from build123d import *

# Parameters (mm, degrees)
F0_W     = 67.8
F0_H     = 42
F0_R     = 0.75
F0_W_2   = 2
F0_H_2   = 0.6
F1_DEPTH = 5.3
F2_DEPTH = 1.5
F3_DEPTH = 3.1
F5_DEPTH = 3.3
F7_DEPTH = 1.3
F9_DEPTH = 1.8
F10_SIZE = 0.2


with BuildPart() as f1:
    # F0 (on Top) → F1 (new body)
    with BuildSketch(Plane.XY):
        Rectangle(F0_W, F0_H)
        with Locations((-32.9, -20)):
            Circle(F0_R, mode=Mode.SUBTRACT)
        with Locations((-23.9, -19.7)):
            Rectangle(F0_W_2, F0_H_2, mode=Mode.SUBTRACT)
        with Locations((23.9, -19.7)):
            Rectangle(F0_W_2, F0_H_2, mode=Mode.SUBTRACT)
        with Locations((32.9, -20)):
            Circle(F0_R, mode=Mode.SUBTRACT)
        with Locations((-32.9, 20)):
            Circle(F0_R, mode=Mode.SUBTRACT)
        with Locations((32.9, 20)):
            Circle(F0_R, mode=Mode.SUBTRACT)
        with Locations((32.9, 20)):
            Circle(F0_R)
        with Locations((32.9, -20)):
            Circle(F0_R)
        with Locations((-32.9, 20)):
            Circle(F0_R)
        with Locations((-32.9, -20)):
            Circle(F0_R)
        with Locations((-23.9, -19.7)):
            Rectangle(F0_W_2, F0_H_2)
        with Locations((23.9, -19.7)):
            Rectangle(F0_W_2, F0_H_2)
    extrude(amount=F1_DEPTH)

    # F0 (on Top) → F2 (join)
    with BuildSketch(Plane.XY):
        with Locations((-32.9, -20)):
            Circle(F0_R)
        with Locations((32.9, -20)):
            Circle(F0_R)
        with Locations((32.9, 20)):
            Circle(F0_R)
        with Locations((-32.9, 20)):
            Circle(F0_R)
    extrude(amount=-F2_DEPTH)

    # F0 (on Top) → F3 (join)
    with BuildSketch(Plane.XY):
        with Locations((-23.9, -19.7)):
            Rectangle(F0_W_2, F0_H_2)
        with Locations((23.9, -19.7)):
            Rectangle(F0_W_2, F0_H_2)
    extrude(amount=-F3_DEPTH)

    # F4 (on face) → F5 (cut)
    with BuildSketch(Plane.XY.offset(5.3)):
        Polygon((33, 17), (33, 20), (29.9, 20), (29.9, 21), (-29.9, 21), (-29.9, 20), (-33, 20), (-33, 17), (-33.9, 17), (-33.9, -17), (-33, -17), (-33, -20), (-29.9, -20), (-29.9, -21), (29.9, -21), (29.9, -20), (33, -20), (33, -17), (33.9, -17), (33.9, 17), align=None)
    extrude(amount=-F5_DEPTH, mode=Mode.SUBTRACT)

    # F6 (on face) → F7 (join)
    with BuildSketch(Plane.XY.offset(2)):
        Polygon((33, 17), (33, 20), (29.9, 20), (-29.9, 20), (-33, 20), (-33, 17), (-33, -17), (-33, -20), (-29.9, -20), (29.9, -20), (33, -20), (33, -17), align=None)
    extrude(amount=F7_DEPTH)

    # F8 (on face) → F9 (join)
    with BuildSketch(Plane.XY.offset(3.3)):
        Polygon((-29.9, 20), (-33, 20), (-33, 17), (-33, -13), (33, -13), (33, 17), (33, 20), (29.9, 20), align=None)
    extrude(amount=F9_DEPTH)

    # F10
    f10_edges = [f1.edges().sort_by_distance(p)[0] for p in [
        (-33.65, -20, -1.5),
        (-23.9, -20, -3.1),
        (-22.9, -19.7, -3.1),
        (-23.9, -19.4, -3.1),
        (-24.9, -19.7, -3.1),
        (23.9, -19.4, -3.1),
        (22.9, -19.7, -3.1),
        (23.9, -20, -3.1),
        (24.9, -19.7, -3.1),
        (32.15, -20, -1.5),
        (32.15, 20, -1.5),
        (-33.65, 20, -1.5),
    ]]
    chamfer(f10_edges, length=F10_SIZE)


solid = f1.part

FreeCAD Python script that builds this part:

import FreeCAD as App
import Part
import Sketcher
from FreeCAD import Vector


def edges_at(feature, points):
    """Names of the edges that pass closest to the given points."""
    edges = feature.Shape.Edges
    near = lambda p: min(range(len(edges)), key=lambda i: edges[i].distToShape(Part.Vertex(*p))[0])
    return sorted({f"Edge{near(p) + 1}" for p in points})

doc = App.newDocument("Part")
body = doc.addObject("PartDesign::Body", "Body")

# Sketch on XY plane
sketch1 = doc.addObject("Sketcher::SketchObject", "Sketch")
body.addObject(sketch1)
sketch1.AttachmentSupport = (doc.XY_Plane, [""])
sketch1.MapMode = "FlatFace"
sketch1.addGeometry(Part.LineSegment(Vector(-33.9, 21, 0), Vector(-33.9, -21, 0)), False)
sketch1.addGeometry(Part.LineSegment(Vector(-33.9, -21, 0), Vector(33.9, -21, 0)), False)
sketch1.addGeometry(Part.LineSegment(Vector(33.9, -21, 0), Vector(33.9, 21, 0)), False)
sketch1.addGeometry(Part.LineSegment(Vector(33.9, 21, 0), Vector(-33.9, 21, 0)), False)
sketch1.addConstraint(Sketcher.Constraint("Coincident", 0, 2, 1, 1))
sketch1.addConstraint(Sketcher.Constraint("Coincident", 1, 2, 2, 1))
sketch1.addConstraint(Sketcher.Constraint("Coincident", 2, 2, 3, 1))
sketch1.addConstraint(Sketcher.Constraint("Coincident", 3, 2, 0, 1))
sketch1.addConstraint(Sketcher.Constraint("Vertical", 0))
sketch1.addConstraint(Sketcher.Constraint("Horizontal", 1))
sketch1.addConstraint(Sketcher.Constraint("Vertical", 2))
sketch1.addConstraint(Sketcher.Constraint("Horizontal", 3))
sketch1.addConstraint(Sketcher.Constraint("Symmetric", 0, 2, 2, 2, -1, 1))
sketch1.addConstraint(Sketcher.Constraint("DistanceY", 0, 2, 0, 1, 42.0))
sketch1.addConstraint(Sketcher.Constraint("DistanceX", 1, 1, 1, 2, 67.8))
pad1 = doc.addObject("PartDesign::Pad", "Pad")
body.addObject(pad1)
pad1.Profile = sketch1
pad1.Length = 5.3

# Sketch on XY plane
sketch2 = doc.addObject("Sketcher::SketchObject", "Sketch001")
body.addObject(sketch2)
sketch2.AttachmentSupport = (doc.XY_Plane, [""])
sketch2.MapMode = "FlatFace"
sketch2.addGeometry(Part.Circle(Vector(-32.9, -20, 0), Vector(0, 0, 1), 0.75), False)
sketch2.addGeometry(Part.Circle(Vector(32.9, -20, 0), Vector(0, 0, 1), 0.75), False)
sketch2.addGeometry(Part.Circle(Vector(32.9, 20, 0), Vector(0, 0, 1), 0.75), False)
sketch2.addGeometry(Part.Circle(Vector(-32.9, 20, 0), Vector(0, 0, 1), 0.75), False)
sketch2.addConstraint(Sketcher.Constraint("Equal", 0, 1))
sketch2.addConstraint(Sketcher.Constraint("Equal", 1, 2))
sketch2.addConstraint(Sketcher.Constraint("Equal", 2, 3))
sketch2.addConstraint(Sketcher.Constraint("Symmetric", 0, 3, 2, 3, -1, 1))
sketch2.addConstraint(Sketcher.Constraint("Symmetric", 1, 3, 3, 3, -1, 1))
sketch2.addConstraint(Sketcher.Constraint("Symmetric", 0, 3, 1, 3, -2))
sketch2.addConstraint(Sketcher.Constraint("Diameter", 0, 1.5))
sketch2.addConstraint(Sketcher.Constraint("DistanceY", 0, 3, -1, 1, 20.0))
sketch2.addConstraint(Sketcher.Constraint("DistanceX", 0, 3, -1, 1, 32.9))
pad2 = doc.addObject("PartDesign::Pad", "Pad001")
body.addObject(pad2)
pad2.Profile = sketch2
pad2.Length = 1.5
pad2.Reversed = True

# Sketch on XY plane
sketch3 = doc.addObject("Sketcher::SketchObject", "Sketch002")
body.addObject(sketch3)
sketch3.AttachmentSupport = (doc.XY_Plane, [""])
sketch3.MapMode = "FlatFace"
sketch3.addGeometry(Part.LineSegment(Vector(-24.9, -19.4, 0), Vector(-24.9, -20, 0)), False)
sketch3.addGeometry(Part.LineSegment(Vector(-24.9, -20, 0), Vector(-22.9, -20, 0)), False)
sketch3.addGeometry(Part.LineSegment(Vector(-22.9, -20, 0), Vector(-22.9, -19.4, 0)), False)
sketch3.addGeometry(Part.LineSegment(Vector(-22.9, -19.4, 0), Vector(-24.9, -19.4, 0)), False)
sketch3.addGeometry(Part.LineSegment(Vector(22.9, -19.4, 0), Vector(22.9, -20, 0)), False)
sketch3.addGeometry(Part.LineSegment(Vector(22.9, -20, 0), Vector(24.9, -20, 0)), False)
sketch3.addGeometry(Part.LineSegment(Vector(24.9, -20, 0), Vector(24.9, -19.4, 0)), False)
sketch3.addGeometry(Part.LineSegment(Vector(24.9, -19.4, 0), Vector(22.9, -19.4, 0)), False)
sketch3.addConstraint(Sketcher.Constraint("Coincident", 0, 2, 1, 1))
sketch3.addConstraint(Sketcher.Constraint("Coincident", 1, 2, 2, 1))
sketch3.addConstraint(Sketcher.Constraint("Coincident", 2, 2, 3, 1))
sketch3.addConstraint(Sketcher.Constraint("Coincident", 3, 2, 0, 1))
sketch3.addConstraint(Sketcher.Constraint("Coincident", 4, 2, 5, 1))
sketch3.addConstraint(Sketcher.Constraint("Coincident", 5, 2, 6, 1))
sketch3.addConstraint(Sketcher.Constraint("Coincident", 6, 2, 7, 1))
sketch3.addConstraint(Sketcher.Constraint("Coincident", 7, 2, 4, 1))
sketch3.addConstraint(Sketcher.Constraint("Vertical", 0))
sketch3.addConstraint(Sketcher.Constraint("Horizontal", 1))
sketch3.addConstraint(Sketcher.Constraint("Vertical", 2))
sketch3.addConstraint(Sketcher.Constraint("Horizontal", 3))
sketch3.addConstraint(Sketcher.Constraint("Vertical", 4))
sketch3.addConstraint(Sketcher.Constraint("Horizontal", 5))
sketch3.addConstraint(Sketcher.Constraint("Vertical", 6))
sketch3.addConstraint(Sketcher.Constraint("Horizontal", 7))
sketch3.addConstraint(Sketcher.Constraint("Symmetric", 1, 2, 4, 2, -2))
sketch3.addConstraint(Sketcher.Constraint("Symmetric", 3, 2, 6, 2, -2))
sketch3.addConstraint(Sketcher.Constraint("DistanceX", 1, 1, 1, 2, 2.0))
sketch3.addConstraint(Sketcher.Constraint("DistanceY", 0, 2, 0, 1, 0.6))
sketch3.addConstraint(Sketcher.Constraint("DistanceY", 0, 2, -1, 1, 20.0))
sketch3.addConstraint(Sketcher.Constraint("DistanceX", 0, 2, -1, 1, 24.9))
pad3 = doc.addObject("PartDesign::Pad", "Pad002")
body.addObject(pad3)
pad3.Profile = sketch3
pad3.Length = 3.1
pad3.Reversed = True

# Sketch on XY plane
sketch4 = doc.addObject("Sketcher::SketchObject", "Sketch003")
body.addObject(sketch4)
sketch4.AttachmentSupport = (doc.XY_Plane, [""])
sketch4.MapMode = "FlatFace"
sketch4.AttachmentOffset = App.Placement(Vector(0, 0, 5.3), App.Rotation())
sketch4.addGeometry(Part.LineSegment(Vector(33, 17, 0), Vector(33, 20, 0)), False)
sketch4.addGeometry(Part.LineSegment(Vector(33, 20, 0), Vector(29.9, 20, 0)), False)
sketch4.addGeometry(Part.LineSegment(Vector(29.9, 20, 0), Vector(29.9, 21, 0)), False)
sketch4.addGeometry(Part.LineSegment(Vector(29.9, 21, 0), Vector(-29.9, 21, 0)), False)
sketch4.addGeometry(Part.LineSegment(Vector(-29.9, 21, 0), Vector(-29.9, 20, 0)), False)
sketch4.addGeometry(Part.LineSegment(Vector(-29.9, 20, 0), Vector(-33, 20, 0)), False)
sketch4.addGeometry(Part.LineSegment(Vector(-33, 20, 0), Vector(-33, 17, 0)), False)
sketch4.addGeometry(Part.LineSegment(Vector(-33, 17, 0), Vector(-33.9, 17, 0)), False)
sketch4.addGeometry(Part.LineSegment(Vector(-33.9, 17, 0), Vector(-33.9, -17, 0)), False)
sketch4.addGeometry(Part.LineSegment(Vector(-33.9, -17, 0), Vector(-33, -17, 0)), False)
sketch4.addGeometry(Part.LineSegment(Vector(-33, -17, 0), Vector(-33, -20, 0)), False)
sketch4.addGeometry(Part.LineSegment(Vector(-33, -20, 0), Vector(-29.9, -20, 0)), False)
sketch4.addGeometry(Part.LineSegment(Vector(-29.9, -20, 0), Vector(-29.9, -21, 0)), False)
sketch4.addGeometry(Part.LineSegment(Vector(-29.9, -21, 0), Vector(29.9, -21, 0)), False)
sketch4.addGeometry(Part.LineSegment(Vector(29.9, -21, 0), Vector(29.9, -20, 0)), False)
sketch4.addGeometry(Part.LineSegment(Vector(29.9, -20, 0), Vector(33, -20, 0)), False)
sketch4.addGeometry(Part.LineSegment(Vector(33, -20, 0), Vector(33, -17, 0)), False)
sketch4.addGeometry(Part.LineSegment(Vector(33, -17, 0), Vector(33.9, -17, 0)), False)
sketch4.addGeometry(Part.LineSegment(Vector(33.9, -17, 0), Vector(33.9, 17, 0)), False)
sketch4.addGeometry(Part.LineSegment(Vector(33.9, 17, 0), Vector(33, 17, 0)), False)
sketch4.addConstraint(Sketcher.Constraint("Coincident", 0, 2, 1, 1))
sketch4.addConstraint(Sketcher.Constraint("Coincident", 1, 2, 2, 1))
sketch4.addConstraint(Sketcher.Constraint("Coincident", 2, 2, 3, 1))
sketch4.addConstraint(Sketcher.Constraint("Coincident", 3, 2, 4, 1))
sketch4.addConstraint(Sketcher.Constraint("Coincident", 4, 2, 5, 1))
sketch4.addConstraint(Sketcher.Constraint("Coincident", 5, 2, 6, 1))
sketch4.addConstraint(Sketcher.Constraint("Coincident", 6, 2, 7, 1))
sketch4.addConstraint(Sketcher.Constraint("Coincident", 7, 2, 8, 1))
sketch4.addConstraint(Sketcher.Constraint("Coincident", 8, 2, 9, 1))
sketch4.addConstraint(Sketcher.Constraint("Coincident", 9, 2, 10, 1))
sketch4.addConstraint(Sketcher.Constraint("Coincident", 10, 2, 11, 1))
sketch4.addConstraint(Sketcher.Constraint("Coincident", 11, 2, 12, 1))
sketch4.addConstraint(Sketcher.Constraint("Coincident", 12, 2, 13, 1))
sketch4.addConstraint(Sketcher.Constraint("Coincident", 13, 2, 14, 1))
sketch4.addConstraint(Sketcher.Constraint("Coincident", 14, 2, 15, 1))
sketch4.addConstraint(Sketcher.Constraint("Coincident", 15, 2, 16, 1))
sketch4.addConstraint(Sketcher.Constraint("Coincident", 16, 2, 17, 1))
sketch4.addConstraint(Sketcher.Constraint("Coincident", 17, 2, 18, 1))
sketch4.addConstraint(Sketcher.Constraint("Coincident", 18, 2, 19, 1))
sketch4.addConstraint(Sketcher.Constraint("Coincident", 19, 2, 0, 1))
sketch4.addConstraint(Sketcher.Constraint("Vertical", 0))
sketch4.addConstraint(Sketcher.Constraint("Horizontal", 1))
sketch4.addConstraint(Sketcher.Constraint("Vertical", 2))
sketch4.addConstraint(Sketcher.Constraint("Horizontal", 3))
sketch4.addConstraint(Sketcher.Constraint("Vertical", 4))
sketch4.addConstraint(Sketcher.Constraint("Horizontal", 5))
sketch4.addConstraint(Sketcher.Constraint("Vertical", 6))
sketch4.addConstraint(Sketcher.Constraint("Horizontal", 7))
sketch4.addConstraint(Sketcher.Constraint("Vertical", 8))
sketch4.addConstraint(Sketcher.Constraint("Horizontal", 9))
sketch4.addConstraint(Sketcher.Constraint("Vertical", 10))
sketch4.addConstraint(Sketcher.Constraint("Horizontal", 11))
sketch4.addConstraint(Sketcher.Constraint("Vertical", 12))
sketch4.addConstraint(Sketcher.Constraint("Horizontal", 13))
sketch4.addConstraint(Sketcher.Constraint("Vertical", 14))
sketch4.addConstraint(Sketcher.Constraint("Horizontal", 15))
sketch4.addConstraint(Sketcher.Constraint("Vertical", 16))
sketch4.addConstraint(Sketcher.Constraint("Horizontal", 17))
sketch4.addConstraint(Sketcher.Constraint("Vertical", 18))
sketch4.addConstraint(Sketcher.Constraint("Horizontal", 19))
sketch4.addConstraint(Sketcher.Constraint("Symmetric", 0, 2, 10, 2, -1, 1))
sketch4.addConstraint(Sketcher.Constraint("Symmetric", 2, 2, 12, 2, -1, 1))
sketch4.addConstraint(Sketcher.Constraint("Symmetric", 4, 2, 14, 2, -1, 1))
sketch4.addConstraint(Sketcher.Constraint("Symmetric", 6, 2, 16, 2, -1, 1))
sketch4.addConstraint(Sketcher.Constraint("Symmetric", 8, 2, 18, 2, -1, 1))
sketch4.addConstraint(Sketcher.Constraint("Symmetric", 1, 2, 4, 2, -2))
sketch4.addConstraint(Sketcher.Constraint("Symmetric", 9, 2, 16, 2, -2))
sketch4.addConstraint(Sketcher.Constraint("DistanceY", 0, 1, 0, 2, 3.0))
sketch4.addConstraint(Sketcher.Constraint("DistanceY", 2, 1, 2, 2, 1.0))
sketch4.addConstraint(Sketcher.Constraint("DistanceY", 8, 2, 8, 1, 34.0))
sketch4.addConstraint(Sketcher.Constraint("DistanceX", 1, 2, 1, 1, 3.1))
sketch4.addConstraint(Sketcher.Constraint("DistanceX", 3, 2, 3, 1, 59.8))
sketch4.addConstraint(Sketcher.Constraint("DistanceX", 7, 2, 7, 1, 0.9))
pocket1 = doc.addObject("PartDesign::Pocket", "Pocket")
body.addObject(pocket1)
pocket1.Profile = sketch4
pocket1.Length = 3.3

# Sketch on XY plane
sketch5 = doc.addObject("Sketcher::SketchObject", "Sketch004")
body.addObject(sketch5)
sketch5.AttachmentSupport = (doc.XY_Plane, [""])
sketch5.MapMode = "FlatFace"
sketch5.AttachmentOffset = App.Placement(Vector(0, 0, 2), App.Rotation())
sketch5.addGeometry(Part.LineSegment(Vector(33, 20, 0), Vector(-33, 20, 0)), False)
sketch5.addGeometry(Part.LineSegment(Vector(-33, 20, 0), Vector(-33, -20, 0)), False)
sketch5.addGeometry(Part.LineSegment(Vector(-33, -20, 0), Vector(33, -20, 0)), False)
sketch5.addGeometry(Part.LineSegment(Vector(33, -20, 0), Vector(33, 20, 0)), False)
sketch5.addConstraint(Sketcher.Constraint("Coincident", 0, 2, 1, 1))
sketch5.addConstraint(Sketcher.Constraint("Coincident", 1, 2, 2, 1))
sketch5.addConstraint(Sketcher.Constraint("Coincident", 2, 2, 3, 1))
sketch5.addConstraint(Sketcher.Constraint("Coincident", 3, 2, 0, 1))
sketch5.addConstraint(Sketcher.Constraint("Horizontal", 0))
sketch5.addConstraint(Sketcher.Constraint("Vertical", 1))
sketch5.addConstraint(Sketcher.Constraint("Horizontal", 2))
sketch5.addConstraint(Sketcher.Constraint("Vertical", 3))
sketch5.addConstraint(Sketcher.Constraint("Symmetric", 0, 2, 2, 2, -1, 1))
sketch5.addConstraint(Sketcher.Constraint("DistanceX", 0, 2, 0, 1, 66.0))
sketch5.addConstraint(Sketcher.Constraint("DistanceY", 1, 2, 1, 1, 40.0))
pad4 = doc.addObject("PartDesign::Pad", "Pad003")
body.addObject(pad4)
pad4.Profile = sketch5
pad4.Length = 1.3

# Sketch on XY plane
sketch6 = doc.addObject("Sketcher::SketchObject", "Sketch005")
body.addObject(sketch6)
sketch6.AttachmentSupport = (doc.XY_Plane, [""])
sketch6.MapMode = "FlatFace"
sketch6.AttachmentOffset = App.Placement(Vector(0, 0, 3.3), App.Rotation())
sketch6.addGeometry(Part.LineSegment(Vector(-33, 20, 0), Vector(-33, -13, 0)), False)
sketch6.addGeometry(Part.LineSegment(Vector(-33, -13, 0), Vector(33, -13, 0)), False)
sketch6.addGeometry(Part.LineSegment(Vector(33, -13, 0), Vector(33, 20, 0)), False)
sketch6.addGeometry(Part.LineSegment(Vector(33, 20, 0), Vector(-33, 20, 0)), False)
sketch6.addConstraint(Sketcher.Constraint("Coincident", 0, 2, 1, 1))
sketch6.addConstraint(Sketcher.Constraint("Coincident", 1, 2, 2, 1))
sketch6.addConstraint(Sketcher.Constraint("Coincident", 2, 2, 3, 1))
sketch6.addConstraint(Sketcher.Constraint("Coincident", 3, 2, 0, 1))
sketch6.addConstraint(Sketcher.Constraint("Vertical", 0))
sketch6.addConstraint(Sketcher.Constraint("Horizontal", 1))
sketch6.addConstraint(Sketcher.Constraint("Vertical", 2))
sketch6.addConstraint(Sketcher.Constraint("Horizontal", 3))
sketch6.addConstraint(Sketcher.Constraint("DistanceX", 1, 1, 1, 2, 66.0))
sketch6.addConstraint(Sketcher.Constraint("DistanceY", 0, 2, 0, 1, 33.0))
sketch6.addConstraint(Sketcher.Constraint("DistanceX", 0, 2, -1, 1, 33.0))
sketch6.addConstraint(Sketcher.Constraint("DistanceY", 0, 2, -1, 1, 13.0))
pad5 = doc.addObject("PartDesign::Pad", "Pad004")
body.addObject(pad5)
pad5.Profile = sketch6
pad5.Length = 1.8
doc.recompute()

chamfer = doc.addObject("PartDesign::Chamfer", "Chamfer")
body.addObject(chamfer)
chamfer.Base = (pad5, edges_at(pad5, [
    (-33.65, -20, -1.5),
    (-23.9, -20, -3.1),
    (-22.9, -19.7, -3.1),
    (-23.9, -19.4, -3.1),
    (-24.9, -19.7, -3.1),
    (23.9, -19.4, -3.1),
    (22.9, -19.7, -3.1),
    (23.9, -20, -3.1),
    (24.9, -19.7, -3.1),
    (32.15, -20, -1.5),
    (32.15, 20, -1.5),
    (-33.65, 20, -1.5),
]))
chamfer.Size = 0.2

doc.recompute()
